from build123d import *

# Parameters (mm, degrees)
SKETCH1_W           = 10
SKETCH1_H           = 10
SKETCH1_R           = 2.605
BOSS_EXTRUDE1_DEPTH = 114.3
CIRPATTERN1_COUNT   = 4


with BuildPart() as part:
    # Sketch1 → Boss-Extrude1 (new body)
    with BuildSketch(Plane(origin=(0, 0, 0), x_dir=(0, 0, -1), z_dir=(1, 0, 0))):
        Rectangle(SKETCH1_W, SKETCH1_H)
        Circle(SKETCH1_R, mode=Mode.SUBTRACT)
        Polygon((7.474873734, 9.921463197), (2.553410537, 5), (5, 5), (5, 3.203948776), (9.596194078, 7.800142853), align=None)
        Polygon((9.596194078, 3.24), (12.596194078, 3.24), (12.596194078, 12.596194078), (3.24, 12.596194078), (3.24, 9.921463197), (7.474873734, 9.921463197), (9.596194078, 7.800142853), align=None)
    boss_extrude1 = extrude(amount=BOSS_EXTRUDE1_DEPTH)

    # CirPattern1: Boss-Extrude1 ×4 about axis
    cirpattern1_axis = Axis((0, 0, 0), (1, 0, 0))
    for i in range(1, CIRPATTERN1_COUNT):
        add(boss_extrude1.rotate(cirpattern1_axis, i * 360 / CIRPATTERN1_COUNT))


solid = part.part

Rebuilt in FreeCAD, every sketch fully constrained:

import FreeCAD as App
import Part
import Sketcher

V = App.Vector
Q = App.Units.Quantity

doc = App.newDocument("Part")
body = doc.addObject("PartDesign::Body", "Body")

sketch1 = body.newObject("Sketcher::SketchObject", "Sketch")
sketch1.AttachmentSupport = (doc.getObject("YZ_Plane"), [""])
sketch1.MapMode = "FlatFace"
sketch1.addGeometry([
    Part.LineSegment(V(5, 5, 0), V(-5, 5, 0)),
    Part.LineSegment(V(-5, 5, 0), V(-5, -5, 0)),
    Part.LineSegment(V(-5, -5, 0), V(3.2, -5, 0)),
    Part.LineSegment(V(3.2, -5, 0), V(7.8, -9.6, 0)),
    Part.LineSegment(V(7.8, -9.6, 0), V(3.2, -9.6, 0)),
    Part.LineSegment(V(3.2, -9.6, 0), V(3.2, -12.6, 0)),
    Part.LineSegment(V(3.2, -12.6, 0), V(12.6, -12.6, 0)),
    Part.LineSegment(V(12.6, -12.6, 0), V(12.6, -3.2, 0)),
    Part.LineSegment(V(12.6, -3.2, 0), V(9.9, -3.2, 0)),
    Part.LineSegment(V(9.9, -3.2, 0), V(9.9, -7.5, 0)),
    Part.LineSegment(V(9.9, -7.5, 0), V(5, -2.6, 0)),
    Part.LineSegment(V(5, -2.6, 0), V(5, 5, 0)),
    Part.Circle(V(0, 0, 0), V(0, 0, 1), 2.6),
], False)
sketch1.addConstraint([
    Sketcher.Constraint("Coincident", 0, 2, 1, 1),
    Sketcher.Constraint("Coincident", 1, 2, 2, 1),
    Sketcher.Constraint("Coincident", 2, 2, 3, 1),
    Sketcher.Constraint("Coincident", 3, 2, 4, 1),
    Sketcher.Constraint("Coincident", 4, 2, 5, 1),
    Sketcher.Constraint("Coincident", 5, 2, 6, 1),
    Sketcher.Constraint("Coincident", 6, 2, 7, 1),
    Sketcher.Constraint("Coincident", 7, 2, 8, 1),
    Sketcher.Constraint("Coincident", 8, 2, 9, 1),
    Sketcher.Constraint("Coincident", 9, 2, 10, 1),
    Sketcher.Constraint("Coincident", 10, 2, 11, 1),
    Sketcher.Constraint("Coincident", 11, 2, 0, 1),
    Sketcher.Constraint("Horizontal", 0),
    Sketcher.Constraint("Vertical", 1),
    Sketcher.Constraint("Horizontal", 2),
    Sketcher.Constraint("Horizontal", 4),
    Sketcher.Constraint("Vertical", 5),
    Sketcher.Constraint("Horizontal", 6),
    Sketcher.Constraint("Vertical", 7),
    Sketcher.Constraint("Horizontal", 8),
    Sketcher.Constraint("Vertical", 9),
    Sketcher.Constraint("Vertical", 11),
    Sketcher.Constraint("Coincident", 12, 3, -1, 1),
    Sketcher.Constraint("Symmetric", 1, 2, 11, 2, -1, 1),
    Sketcher.Constraint("Parallel", 3, 10),
    Sketcher.Constraint("Equal", 0, 1),
    Sketcher.Constraint("Equal", 6, 7),
    Sketcher.Constraint("Diameter", 12, Q("5.21 mm")),
    Sketcher.Constraint("DistanceX", 0, 2, 0, 1, Q("10 mm")),
    Sketcher.Constraint("DistanceY", 5, 2, 5, 1, Q("3 mm")),
    Sketcher.Constraint("Angle", 3, Q("-45 deg")),
    Sketcher.Constraint("Distance", 3, Q("6.5 mm")),
    Sketcher.Constraint("Distance", 10, Q("6.96 mm")),
    Sketcher.Constraint("DistanceX", -1, 1, 4, 2, Q("3.24 mm")),
    Sketcher.Constraint("DistanceY", 7, 2, -1, 1, Q("3.24 mm")),
    Sketcher.Constraint("DistanceX", 2, 1, 2, 2, Q("8.203949 mm")),
    Sketcher.Constraint("DistanceY", 11, 1, 11, 2, Q("7.553411 mm")),
])
pad1 = body.newObject("PartDesign::Pad", "Pad")
pad1.Profile = sketch1
pad1.Length = 114.3
doc.recompute()

polarpattern = body.newObject("PartDesign::PolarPattern", "PolarPattern")
polarpattern.Originals = [pad1]
polarpattern.Axis = (doc.getObject("X_Axis"), [""])
polarpattern.Angle = 360
polarpattern.Occurrences = 4
body.Tip = polarpattern

doc.recompute()
